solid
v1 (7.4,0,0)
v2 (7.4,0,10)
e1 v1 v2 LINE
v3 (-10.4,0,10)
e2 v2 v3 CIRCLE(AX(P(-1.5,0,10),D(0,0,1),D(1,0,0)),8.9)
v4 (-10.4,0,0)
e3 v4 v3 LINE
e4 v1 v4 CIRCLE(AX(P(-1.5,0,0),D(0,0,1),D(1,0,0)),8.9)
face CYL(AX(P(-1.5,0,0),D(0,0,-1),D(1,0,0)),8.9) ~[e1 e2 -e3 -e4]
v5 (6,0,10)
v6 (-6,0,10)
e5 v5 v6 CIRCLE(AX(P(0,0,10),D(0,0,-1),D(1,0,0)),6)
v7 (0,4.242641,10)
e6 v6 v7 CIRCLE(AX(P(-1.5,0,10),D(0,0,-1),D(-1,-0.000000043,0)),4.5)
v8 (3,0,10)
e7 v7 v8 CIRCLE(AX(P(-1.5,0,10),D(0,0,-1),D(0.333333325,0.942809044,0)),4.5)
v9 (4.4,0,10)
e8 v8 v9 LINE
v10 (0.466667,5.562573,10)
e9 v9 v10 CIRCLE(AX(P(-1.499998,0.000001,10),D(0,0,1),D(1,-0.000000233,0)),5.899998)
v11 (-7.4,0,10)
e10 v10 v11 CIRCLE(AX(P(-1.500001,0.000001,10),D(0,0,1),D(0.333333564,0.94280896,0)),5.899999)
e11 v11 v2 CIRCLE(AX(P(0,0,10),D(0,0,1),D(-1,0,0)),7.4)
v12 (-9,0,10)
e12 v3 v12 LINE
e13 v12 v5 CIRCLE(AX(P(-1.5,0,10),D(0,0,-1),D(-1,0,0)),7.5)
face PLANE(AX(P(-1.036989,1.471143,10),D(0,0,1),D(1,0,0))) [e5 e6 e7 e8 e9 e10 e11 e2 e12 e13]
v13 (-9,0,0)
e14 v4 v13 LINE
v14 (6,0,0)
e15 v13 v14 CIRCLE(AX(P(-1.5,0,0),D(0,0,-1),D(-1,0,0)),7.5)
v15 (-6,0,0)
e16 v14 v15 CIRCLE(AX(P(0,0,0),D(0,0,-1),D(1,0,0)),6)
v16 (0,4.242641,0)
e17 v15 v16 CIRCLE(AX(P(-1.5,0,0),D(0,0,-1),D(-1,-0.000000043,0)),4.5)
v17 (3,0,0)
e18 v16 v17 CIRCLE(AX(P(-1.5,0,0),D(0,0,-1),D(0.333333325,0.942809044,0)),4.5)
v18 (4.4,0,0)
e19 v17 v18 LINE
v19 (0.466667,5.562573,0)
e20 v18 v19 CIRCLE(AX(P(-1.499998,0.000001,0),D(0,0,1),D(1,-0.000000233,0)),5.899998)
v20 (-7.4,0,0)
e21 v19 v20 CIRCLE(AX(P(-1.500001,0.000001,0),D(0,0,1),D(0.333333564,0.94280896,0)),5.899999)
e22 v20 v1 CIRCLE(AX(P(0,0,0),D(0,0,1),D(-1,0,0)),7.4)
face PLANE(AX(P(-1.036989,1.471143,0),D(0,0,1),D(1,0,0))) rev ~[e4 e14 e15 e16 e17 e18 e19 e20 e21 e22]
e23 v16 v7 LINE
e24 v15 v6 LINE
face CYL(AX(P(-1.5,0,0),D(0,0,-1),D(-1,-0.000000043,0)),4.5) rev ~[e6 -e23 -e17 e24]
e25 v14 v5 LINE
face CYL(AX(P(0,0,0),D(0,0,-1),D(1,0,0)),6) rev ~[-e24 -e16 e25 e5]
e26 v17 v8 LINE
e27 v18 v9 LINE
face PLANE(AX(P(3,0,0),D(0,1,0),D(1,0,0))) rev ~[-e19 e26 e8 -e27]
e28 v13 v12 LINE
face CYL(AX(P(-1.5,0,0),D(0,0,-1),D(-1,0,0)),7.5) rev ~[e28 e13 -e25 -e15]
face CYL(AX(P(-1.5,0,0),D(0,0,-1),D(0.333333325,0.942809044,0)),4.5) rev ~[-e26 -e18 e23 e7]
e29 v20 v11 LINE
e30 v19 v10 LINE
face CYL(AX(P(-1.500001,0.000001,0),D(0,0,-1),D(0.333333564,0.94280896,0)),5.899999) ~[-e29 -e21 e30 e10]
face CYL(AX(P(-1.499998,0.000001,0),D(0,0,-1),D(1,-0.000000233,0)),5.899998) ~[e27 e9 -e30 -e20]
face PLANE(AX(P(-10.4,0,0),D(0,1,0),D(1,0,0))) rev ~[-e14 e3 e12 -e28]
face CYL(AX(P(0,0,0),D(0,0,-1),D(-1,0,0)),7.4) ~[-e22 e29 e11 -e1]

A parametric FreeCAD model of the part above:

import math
import FreeCAD as App
import Part
import Sketcher
Q = App.Units.Quantity

doc = App.newDocument("Part")
body = doc.addObject("PartDesign::Body", "Body")

sketch1 = doc.addObject("Sketcher::SketchObject", "Sketch")
body.addObject(sketch1)
sketch1.AttachmentSupport = (doc.XY_Plane, [""])
sketch1.MapMode = "FlatFace"
sketch1.addGeometry([
    Part.ArcOfCircle(Part.Circle(App.Vector(-1.5, 0, 0), App.Vector(0, 0, 1), 4.5), math.radians(0), math.radians(71)),
    Part.LineSegment(App.Vector(3, 0, 0), App.Vector(4.4, 0, 0)),
    Part.ArcOfCircle(Part.Circle(App.Vector(-1.5, 0, 0), App.Vector(0, 0, 1), 5.9), math.radians(0), math.radians(71)),
    Part.ArcOfCircle(Part.Circle(App.Vector(-1.5, 0, 0), App.Vector(0, 0, 1), 5.9), math.radians(71), math.radians(180)),
    Part.ArcOfCircle(Part.Circle(App.Vector(0, 0, 0), App.Vector(0, 0, 1), 7.4), math.radians(180), math.radians(360)),
    Part.ArcOfCircle(Part.Circle(App.Vector(-1.5, 0, 0), App.Vector(0, 0, 1), 8.9), math.radians(0), math.radians(180)),
    Part.LineSegment(App.Vector(-10.4, 0, 0), App.Vector(-9, 0, 0)),
    Part.ArcOfCircle(Part.Circle(App.Vector(-1.5, 0, 0), App.Vector(0, 0, 1), 7.5), math.radians(0), math.radians(180)),
    Part.ArcOfCircle(Part.Circle(App.Vector(0, 0, 0), App.Vector(0, 0, 1), 6), math.radians(180), math.radians(360)),
    Part.ArcOfCircle(Part.Circle(App.Vector(-1.5, 0, 0), App.Vector(0, 0, 1), 4.5), math.radians(71), math.radians(180)),
], False)
sketch1.addConstraint([
    Sketcher.Constraint("Coincident", 0, 1, 1, 1),
    Sketcher.Constraint("Coincident", 1, 2, 2, 1),
    Sketcher.Constraint("Tangent", 2, 2, 3, 1),
    Sketcher.Constraint("Tangent", 3, 2, 4, 1),
    Sketcher.Constraint("Tangent", 4, 2, 5, 1),
    Sketcher.Constraint("Coincident", 5, 2, 6, 1),
    Sketcher.Constraint("Coincident", 6, 2, 7, 2),
    Sketcher.Constraint("Tangent", 7, 1, 8, 2),
    Sketcher.Constraint("Tangent", 8, 1, 9, 2),
    Sketcher.Constraint("Tangent", 9, 1, 0, 2),
    Sketcher.Constraint("Horizontal", 1),
    Sketcher.Constraint("Horizontal", 6),
    Sketcher.Constraint("Coincident", 4, 3, -1, 1),
    Sketcher.Constraint("Coincident", 8, 3, -1, 1),
    Sketcher.Constraint("Coincident", 2, 3, 0, 3),
    Sketcher.Constraint("Coincident", 5, 3, 0, 3),
    Sketcher.Constraint("Coincident", 7, 3, 0, 3),
    Sketcher.Constraint("Equal", 2, 3),
    Sketcher.Constraint("Equal", 0, 9),
    Sketcher.Constraint("PointOnObject", 0, 3, -1),
    Sketcher.Constraint("PointOnObject", 0, 1, -1),
    Sketcher.Constraint("PointOnObject", 5, 2, -1),
    Sketcher.Constraint("PointOnObject", 9, 1, -2),
    Sketcher.Constraint("Radius", 8, Q("6 mm")),
    Sketcher.Constraint("Radius", 0, Q("4.5 mm")),
    Sketcher.Constraint("Radius", 3, Q("5.899999 mm")),
    Sketcher.Constraint("DistanceY", 2, 3, 2, 2, Q("5.562572 mm")),
])
pad1 = doc.addObject("PartDesign::Pad", "Pad")
body.addObject(pad1)
pad1.Profile = sketch1
pad1.Length = 10

doc.recompute()
